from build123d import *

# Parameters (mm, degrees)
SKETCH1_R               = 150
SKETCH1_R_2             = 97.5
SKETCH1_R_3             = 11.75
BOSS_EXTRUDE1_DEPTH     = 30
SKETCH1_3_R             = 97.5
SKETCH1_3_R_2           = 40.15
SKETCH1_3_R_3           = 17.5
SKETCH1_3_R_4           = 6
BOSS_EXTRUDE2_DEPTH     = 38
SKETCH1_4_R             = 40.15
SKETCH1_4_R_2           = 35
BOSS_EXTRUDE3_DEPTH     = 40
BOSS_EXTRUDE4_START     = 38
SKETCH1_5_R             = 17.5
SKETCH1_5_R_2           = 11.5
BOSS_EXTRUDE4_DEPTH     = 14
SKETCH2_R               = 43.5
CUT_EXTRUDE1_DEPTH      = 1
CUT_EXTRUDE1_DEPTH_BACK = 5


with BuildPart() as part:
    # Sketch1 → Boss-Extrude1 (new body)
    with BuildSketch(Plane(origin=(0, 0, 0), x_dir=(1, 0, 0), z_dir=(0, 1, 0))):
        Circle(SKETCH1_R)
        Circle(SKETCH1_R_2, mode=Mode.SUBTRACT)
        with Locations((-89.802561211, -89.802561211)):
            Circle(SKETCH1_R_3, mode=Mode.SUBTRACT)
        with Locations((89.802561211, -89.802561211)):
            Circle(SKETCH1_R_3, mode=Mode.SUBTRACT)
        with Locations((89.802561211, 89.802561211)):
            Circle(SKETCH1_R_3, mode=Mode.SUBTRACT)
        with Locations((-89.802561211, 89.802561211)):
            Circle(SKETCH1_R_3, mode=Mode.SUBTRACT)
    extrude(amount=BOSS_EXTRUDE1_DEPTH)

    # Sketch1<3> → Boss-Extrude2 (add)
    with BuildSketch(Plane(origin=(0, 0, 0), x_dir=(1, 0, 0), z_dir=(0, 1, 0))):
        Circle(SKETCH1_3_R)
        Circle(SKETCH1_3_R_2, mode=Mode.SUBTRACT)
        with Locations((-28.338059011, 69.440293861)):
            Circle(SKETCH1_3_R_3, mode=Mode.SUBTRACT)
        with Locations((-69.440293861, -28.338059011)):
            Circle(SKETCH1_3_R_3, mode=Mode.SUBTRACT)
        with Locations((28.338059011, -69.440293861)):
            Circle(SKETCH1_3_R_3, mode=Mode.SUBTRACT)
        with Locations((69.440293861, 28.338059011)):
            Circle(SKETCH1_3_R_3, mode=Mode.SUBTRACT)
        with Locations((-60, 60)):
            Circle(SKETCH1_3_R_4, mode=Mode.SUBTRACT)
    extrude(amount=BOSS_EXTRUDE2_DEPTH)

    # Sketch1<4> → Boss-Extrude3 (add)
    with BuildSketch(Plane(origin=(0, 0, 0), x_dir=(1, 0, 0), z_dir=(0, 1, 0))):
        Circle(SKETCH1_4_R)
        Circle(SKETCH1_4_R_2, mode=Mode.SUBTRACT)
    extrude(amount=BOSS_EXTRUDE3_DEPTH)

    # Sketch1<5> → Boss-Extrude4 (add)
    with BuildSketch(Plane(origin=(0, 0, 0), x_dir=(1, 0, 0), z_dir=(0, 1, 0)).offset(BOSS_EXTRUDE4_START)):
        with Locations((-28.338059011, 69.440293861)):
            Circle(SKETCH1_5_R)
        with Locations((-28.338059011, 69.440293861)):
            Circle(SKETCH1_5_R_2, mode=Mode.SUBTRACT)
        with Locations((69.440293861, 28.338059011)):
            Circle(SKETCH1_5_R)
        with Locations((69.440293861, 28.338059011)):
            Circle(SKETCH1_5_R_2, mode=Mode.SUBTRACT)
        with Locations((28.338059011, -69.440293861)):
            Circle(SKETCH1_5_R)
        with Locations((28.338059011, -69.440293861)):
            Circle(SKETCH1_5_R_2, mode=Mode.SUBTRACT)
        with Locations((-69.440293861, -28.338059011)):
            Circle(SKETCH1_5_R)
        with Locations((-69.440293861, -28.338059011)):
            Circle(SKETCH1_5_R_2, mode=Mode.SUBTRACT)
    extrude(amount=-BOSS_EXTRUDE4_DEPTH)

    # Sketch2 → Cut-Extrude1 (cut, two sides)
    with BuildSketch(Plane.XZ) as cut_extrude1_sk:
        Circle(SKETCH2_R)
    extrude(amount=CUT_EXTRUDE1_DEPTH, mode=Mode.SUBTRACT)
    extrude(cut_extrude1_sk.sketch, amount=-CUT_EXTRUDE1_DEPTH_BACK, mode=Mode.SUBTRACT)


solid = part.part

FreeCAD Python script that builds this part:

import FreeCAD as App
import Part
import Sketcher

V = App.Vector
Q = App.Units.Quantity

doc = App.newDocument("Part")
body = doc.addObject("PartDesign::Body", "Body")

sketch1 = body.newObject("Sketcher::SketchObject", "Sketch")
sketch1.AttachmentSupport = (doc.getObject("XZ_Plane"), [""])
sketch1.MapMode = "FlatFace"
sketch1.addGeometry(Part.Circle(V(0, 0, 0), V(0, 0, 1), 150), False)
sketch1.addGeometry(Part.Circle(V(-90, 90, 0), V(0, 0, 1), 12), False)
sketch1.addGeometry(Part.Circle(V(90, 90, 0), V(0, 0, 1), 12), False)
sketch1.addGeometry(Part.Circle(V(-90, -90, 0), V(0, 0, 1), 12), False)
sketch1.addGeometry(Part.Circle(V(0, 0, 0), V(0, 0, 1), 98), False)
sketch1.addGeometry(Part.Circle(V(90, -90, 0), V(0, 0, 1), 12), False)
sketch1.addConstraint(Sketcher.Constraint("Coincident", 0, 3, -1, 1))
sketch1.addConstraint(Sketcher.Constraint("Coincident", 4, 3, -1, 1))
sketch1.addConstraint(Sketcher.Constraint("Equal", 1, 2))
sketch1.addConstraint(Sketcher.Constraint("Equal", 2, 3))
sketch1.addConstraint(Sketcher.Constraint("Equal", 3, 5))
sketch1.addConstraint(Sketcher.Constraint("Symmetric", 2, 3, 3, 3, -1, 1))
sketch1.addConstraint(Sketcher.Constraint("Symmetric", 1, 3, 5, 3, -1, 1))
sketch1.addConstraint(Sketcher.Constraint("Symmetric", 1, 3, 2, 3, -2))
sketch1.addConstraint(Sketcher.Constraint("Diameter", 0, Q("300 mm")))
sketch1.addConstraint(Sketcher.Constraint("Diameter", 4, Q("195 mm")))
sketch1.addConstraint(Sketcher.Constraint("Diameter", 1, Q("23.5 mm")))
sketch1.addConstraint(Sketcher.Constraint("DistanceX", 1, 3, -1, 1, Q("89.802561 mm")))
sketch1.addConstraint(Sketcher.Constraint("DistanceY", -1, 1, 1, 3, Q("89.802561 mm")))
pad1 = body.newObject("PartDesign::Pad", "Pad")
pad1.Profile = sketch1
pad1.Length = 30
pad1.Reversed = True

sketch2 = body.newObject("Sketcher::SketchObject", "Sketch001")
sketch2.AttachmentSupport = (doc.getObject("XZ_Plane"), [""])
sketch2.MapMode = "FlatFace"
sketch2.addGeometry(Part.Circle(V(0, 0, 0), V(0, 0, 1), 98), False)
sketch2.addGeometry(Part.Circle(V(-69, 28, 0), V(0, 0, 1), 18), False)
sketch2.addGeometry(Part.Circle(V(28, 69, 0), V(0, 0, 1), 18), False)
sketch2.addGeometry(Part.Circle(V(0, 0, 0), V(0, 0, 1), 40), False)
sketch2.addGeometry(Part.Circle(V(-60, -60, 0), V(0, 0, 1), 6), False)
sketch2.addGeometry(Part.Circle(V(-28, -69, 0), V(0, 0, 1), 18), False)
sketch2.addGeometry(Part.Circle(V(69, -28, 0), V(0, 0, 1), 18), False)
sketch2.addConstraint(Sketcher.Constraint("Coincident", 0, 3, -1, 1))
sketch2.addConstraint(Sketcher.Constraint("Coincident", 3, 3, -1, 1))
sketch2.addConstraint(Sketcher.Constraint("Equal", 1, 2))
sketch2.addConstraint(Sketcher.Constraint("Equal", 2, 5))
sketch2.addConstraint(Sketcher.Constraint("Equal", 5, 6))
sketch2.addConstraint(Sketcher.Constraint("Symmetric", 2, 3, 5, 3, -1, 1))
sketch2.addConstraint(Sketcher.Constraint("Symmetric", 1, 3, 6, 3, -1, 1))
sketch2.addConstraint(Sketcher.Constraint("Diameter", 0, Q("195 mm")))
sketch2.addConstraint(Sketcher.Constraint("Diameter", 1, Q("35 mm")))
sketch2.addConstraint(Sketcher.Constraint("Diameter", 4, Q("12 mm")))
sketch2.addConstraint(Sketcher.Constraint("Diameter", 3, Q("80.3 mm")))
sketch2.addConstraint(Sketcher.Constraint("DistanceX", 4, 3, -1, 1, Q("60 mm")))
sketch2.addConstraint(Sketcher.Constraint("DistanceY", 4, 3, -1, 1, Q("60 mm")))
sketch2.addConstraint(Sketcher.Constraint("DistanceY", -1, 1, 1, 3, Q("28.338059 mm")))
sketch2.addConstraint(Sketcher.Constraint("DistanceX", -1, 1, 2, 3, Q("28.338059 mm")))
sketch2.addConstraint(Sketcher.Constraint("DistanceX", 1, 3, -1, 1, Q("69.440294 mm")))
sketch2.addConstraint(Sketcher.Constraint("DistanceY", -1, 1, 2, 3, Q("69.440294 mm")))
pad2 = body.newObject("PartDesign::Pad", "Pad001")
pad2.Profile = sketch2
pad2.Length = 38
pad2.Reversed = True

sketch3 = body.newObject("Sketcher::SketchObject", "Sketch002")
sketch3.AttachmentSupport = (doc.getObject("XZ_Plane"), [""])
sketch3.MapMode = "FlatFace"
sketch3.addGeometry(Part.Circle(V(0, 0, 0), V(0, 0, 1), 40), False)
sketch3.addGeometry(Part.Circle(V(0, 0, 0), V(0, 0, 1), 35), False)
sketch3.addConstraint(Sketcher.Constraint("Coincident", 0, 3, -1, 1))
sketch3.addConstraint(Sketcher.Constraint("Coincident", 1, 3, -1, 1))
sketch3.addConstraint(Sketcher.Constraint("Diameter", 1, Q("70 mm")))
sketch3.addConstraint(Sketcher.Constraint("Diameter", 0, Q("80.3 mm")))
pad3 = body.newObject("PartDesign::Pad", "Pad002")
pad3.Profile = sketch3
pad3.Length = 40
pad3.Reversed = True

sketch4 = body.newObject("Sketcher::SketchObject", "Sketch003")
sketch4.AttachmentSupport = (doc.getObject("XZ_Plane"), [""])
sketch4.MapMode = "FlatFace"
sketch4.AttachmentOffset = App.Placement(V(0, 0, -38), App.Rotation())
sketch4.addGeometry(Part.Circle(V(-28, -69, 0), V(0, 0, 1), 18), False)
sketch4.addGeometry(Part.Circle(V(-28, -69, 0), V(0, 0, 1), 12), False)
sketch4.addGeometry(Part.Circle(V(69, -28, 0), V(0, 0, 1), 18), False)
sketch4.addGeometry(Part.Circle(V(69, -28, 0), V(0, 0, 1), 12), False)
sketch4.addGeometry(Part.Circle(V(28, 69, 0), V(0, 0, 1), 18), False)
sketch4.addGeometry(Part.Circle(V(28, 69, 0), V(0, 0, 1), 12), False)
sketch4.addGeometry(Part.Circle(V(-69, 28, 0), V(0, 0, 1), 18), False)
sketch4.addGeometry(Part.Circle(V(-69, 28, 0), V(0, 0, 1), 12), False)
sketch4.addConstraint(Sketcher.Constraint("Coincident", 1, 3, 0, 3))
sketch4.addConstraint(Sketcher.Constraint("Coincident", 3, 3, 2, 3))
sketch4.addConstraint(Sketcher.Constraint("Coincident", 5, 3, 4, 3))
sketch4.addConstraint(Sketcher.Constraint("Coincident", 7, 3, 6, 3))
sketch4.addConstraint(Sketcher.Constraint("Equal", 0, 2))
sketch4.addConstraint(Sketcher.Constraint("Equal", 1, 3))
sketch4.addConstraint(Sketcher.Constraint("Equal", 2, 4))
sketch4.addConstraint(Sketcher.Constraint("Equal", 3, 5))
sketch4.addConstraint(Sketcher.Constraint("Equal", 4, 6))
sketch4.addConstraint(Sketcher.Constraint("Equal", 5, 7))
sketch4.addConstraint(Sketcher.Constraint("Symmetric", 0, 3, 4, 3, -1, 1))
sketch4.addConstraint(Sketcher.Constraint("Symmetric", 2, 3, 6, 3, -1, 1))
sketch4.addConstraint(Sketcher.Constraint("Diameter", 0, Q("35 mm")))
sketch4.addConstraint(Sketcher.Constraint("Diameter", 1, Q("23 mm")))
sketch4.addConstraint(Sketcher.Constraint("DistanceX", 0, 3, -1, 1, Q("28.338059 mm")))
sketch4.addConstraint(Sketcher.Constraint("DistanceY", 2, 3, -1, 1, Q("28.338059 mm")))
sketch4.addConstraint(Sketcher.Constraint("DistanceY", 0, 3, -1, 1, Q("69.440294 mm")))
sketch4.addConstraint(Sketcher.Constraint("DistanceX", -1, 1, 2, 3, Q("69.440294 mm")))
pad4 = body.newObject("PartDesign::Pad", "Pad003")
pad4.Profile = sketch4
pad4.Length = 14

sketch5 = body.newObject("Sketcher::SketchObject", "Sketch004")
sketch5.AttachmentSupport = (doc.getObject("XZ_Plane"), [""])
sketch5.MapMode = "FlatFace"
sketch5.addGeometry(Part.Circle(V(0, 0, 0), V(0, 0, 1), 44), False)
sketch5.addConstraint(Sketcher.Constraint("Coincident", 0, 3, -1, 1))
sketch5.addConstraint(Sketcher.Constraint("Diameter", 0, Q("87 mm")))
pocket1 = body.newObject("PartDesign::Pocket", "Pocket")
pocket1.Profile = sketch5
pocket1.Type = "TwoLengths"
pocket1.Length = 1
pocket1.Length2 = 5
pocket1.Reversed = True

doc.recompute()
